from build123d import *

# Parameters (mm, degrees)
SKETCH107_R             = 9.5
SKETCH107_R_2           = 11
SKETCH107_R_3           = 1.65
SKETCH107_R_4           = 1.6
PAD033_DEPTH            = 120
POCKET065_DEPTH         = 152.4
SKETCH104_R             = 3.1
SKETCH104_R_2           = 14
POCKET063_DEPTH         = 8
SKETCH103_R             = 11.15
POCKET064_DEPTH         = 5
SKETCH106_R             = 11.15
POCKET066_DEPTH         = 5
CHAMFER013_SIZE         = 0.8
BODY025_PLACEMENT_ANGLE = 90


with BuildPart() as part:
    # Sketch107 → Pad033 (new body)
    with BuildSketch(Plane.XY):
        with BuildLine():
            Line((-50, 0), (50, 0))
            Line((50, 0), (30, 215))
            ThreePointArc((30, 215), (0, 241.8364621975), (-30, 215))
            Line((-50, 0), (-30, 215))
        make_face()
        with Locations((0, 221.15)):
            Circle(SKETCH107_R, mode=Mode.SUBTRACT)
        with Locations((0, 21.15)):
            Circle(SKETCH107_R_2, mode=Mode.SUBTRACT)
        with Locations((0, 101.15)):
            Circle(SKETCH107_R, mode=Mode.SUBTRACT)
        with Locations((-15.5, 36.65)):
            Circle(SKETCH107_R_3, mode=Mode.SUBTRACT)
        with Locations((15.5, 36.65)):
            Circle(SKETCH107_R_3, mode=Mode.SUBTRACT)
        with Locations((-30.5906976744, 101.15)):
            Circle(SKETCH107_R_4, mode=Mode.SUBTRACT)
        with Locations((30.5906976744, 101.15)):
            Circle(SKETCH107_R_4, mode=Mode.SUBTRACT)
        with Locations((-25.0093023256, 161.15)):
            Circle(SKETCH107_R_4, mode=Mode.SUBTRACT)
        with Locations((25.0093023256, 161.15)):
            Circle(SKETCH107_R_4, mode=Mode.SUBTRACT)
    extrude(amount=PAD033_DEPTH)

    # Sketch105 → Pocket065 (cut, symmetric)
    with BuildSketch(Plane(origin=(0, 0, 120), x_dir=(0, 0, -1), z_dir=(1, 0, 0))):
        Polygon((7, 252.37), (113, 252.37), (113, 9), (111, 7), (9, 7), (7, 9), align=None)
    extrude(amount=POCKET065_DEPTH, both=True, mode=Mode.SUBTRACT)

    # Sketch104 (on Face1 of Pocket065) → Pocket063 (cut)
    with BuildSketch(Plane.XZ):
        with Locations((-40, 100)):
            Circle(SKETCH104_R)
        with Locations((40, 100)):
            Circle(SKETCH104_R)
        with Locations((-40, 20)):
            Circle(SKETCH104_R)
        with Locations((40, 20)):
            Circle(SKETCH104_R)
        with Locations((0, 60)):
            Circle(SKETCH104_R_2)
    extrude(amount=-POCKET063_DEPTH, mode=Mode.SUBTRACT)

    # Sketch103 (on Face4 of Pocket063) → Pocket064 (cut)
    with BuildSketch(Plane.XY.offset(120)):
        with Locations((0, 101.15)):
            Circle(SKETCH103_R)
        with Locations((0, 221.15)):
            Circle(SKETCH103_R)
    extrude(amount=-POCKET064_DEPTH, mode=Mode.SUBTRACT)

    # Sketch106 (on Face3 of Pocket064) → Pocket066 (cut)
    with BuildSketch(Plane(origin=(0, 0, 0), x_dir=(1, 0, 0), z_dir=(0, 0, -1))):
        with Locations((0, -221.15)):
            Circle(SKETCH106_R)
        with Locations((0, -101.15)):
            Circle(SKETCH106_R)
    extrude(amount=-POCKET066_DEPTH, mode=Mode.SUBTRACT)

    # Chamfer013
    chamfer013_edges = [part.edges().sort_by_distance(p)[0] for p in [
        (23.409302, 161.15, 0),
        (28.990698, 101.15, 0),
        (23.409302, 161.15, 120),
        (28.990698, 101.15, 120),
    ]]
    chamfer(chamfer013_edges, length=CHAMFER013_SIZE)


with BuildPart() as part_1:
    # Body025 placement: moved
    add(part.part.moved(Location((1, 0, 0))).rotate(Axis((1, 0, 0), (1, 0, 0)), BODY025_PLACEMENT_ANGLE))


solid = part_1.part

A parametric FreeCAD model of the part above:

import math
import FreeCAD as App
import Part
import Sketcher
from FreeCAD import Vector
Q = App.Units.Quantity


def edges_at(feature, points):
    """Names of the edges that pass closest to the given points."""
    edges = feature.Shape.Edges
    near = lambda p: min(range(len(edges)), key=lambda i: edges[i].distToShape(Part.Vertex(*p))[0])
    return sorted({f"Edge{near(p) + 1}" for p in points})


def add_polygon(sketch, points):
    """Adds a closed chain of lines whose ends are joined by coincident constraints."""
    first, n = sketch.GeometryCount, len(points)
    for a, b in zip(points, points[1:] + points[:1]):
        sketch.addGeometry(Part.LineSegment(App.Vector(*a, 0), App.Vector(*b, 0)), False)
    for i in range(n):
        sketch.addConstraint(Sketcher.Constraint("Coincident", first + i, 2, first + (i + 1) % n, 1))

doc = App.newDocument("Part")
body = doc.addObject("PartDesign::Body", "Body")

# Sketch on XY plane
sketch1 = body.newObject("Sketcher::SketchObject", "Sketch")
sketch1.AttachmentSupport = (doc.getObject("XY_Plane"), [""])
sketch1.MapMode = "FlatFace"
sketch1.addGeometry([
    Part.LineSegment(Vector(-50, 0, 0), Vector(50, 0, 0)),  # 0
    Part.LineSegment(Vector(50, 0, 0), Vector(30, 215, 0)),  # 1
    Part.ArcOfCircle(Part.Circle(Vector(0, 211.7, 0), Vector(0, 0, 1), 30.2), math.radians(6), math.radians(174)),  # 2
    Part.LineSegment(Vector(-30, 215, 0), Vector(-50, 0, 0)),  # 3
    Part.Circle(Vector(-15.5, 36.6, 0), Vector(0, 0, 1), 1.6),  # 4
    Part.Circle(Vector(-30.6, 101.2, 0), Vector(0, 0, 1), 1.6),  # 5
    Part.Circle(Vector(0, 21.1, 0), Vector(0, 0, 1), 11),  # 6
    Part.Circle(Vector(15.5, 36.6, 0), Vector(0, 0, 1), 1.6),  # 7
    Part.Circle(Vector(0, 101.2, 0), Vector(0, 0, 1), 9.5),  # 8
    Part.Circle(Vector(30.6, 101.2, 0), Vector(0, 0, 1), 1.6),  # 9
    Part.Circle(Vector(-25, 161.2, 0), Vector(0, 0, 1), 1.6),  # 10
    Part.Circle(Vector(25, 161.2, 0), Vector(0, 0, 1), 1.6),  # 11
    Part.Circle(Vector(0, 221.2, 0), Vector(0, 0, 1), 9.5),  # 12
], False)
sketch1.addConstraint([
    Sketcher.Constraint("Coincident", 0, 2, 1, 1),
    Sketcher.Constraint("Coincident", 1, 2, 2, 1),
    Sketcher.Constraint("Coincident", 2, 2, 3, 1),
    Sketcher.Constraint("Coincident", 3, 2, 0, 1),
    Sketcher.Constraint("Horizontal", 0),
    Sketcher.Constraint("Equal", 4, 7),
    Sketcher.Constraint("Equal", 5, 9),
    Sketcher.Constraint("Equal", 9, 10),
    Sketcher.Constraint("Equal", 10, 11),
    Sketcher.Constraint("Equal", 8, 12),
    Sketcher.Constraint("Symmetric", 0, 2, 3, 2, -1, 1),
    Sketcher.Constraint("Symmetric", 4, 3, 7, 3, -2),
    Sketcher.Constraint("Symmetric", 5, 3, 9, 3, -2),
    Sketcher.Constraint("Symmetric", 10, 3, 11, 3, -2),
    Sketcher.Constraint("Symmetric", 1, 2, 2, 2, -2),
    Sketcher.Constraint("PointOnObject", 6, 3, -2),
    Sketcher.Constraint("PointOnObject", 8, 3, -2),
    Sketcher.Constraint("PointOnObject", 12, 3, -2),
    Sketcher.Constraint("Horizontal", 5, 3, 8, 3),
    Sketcher.Constraint("Diameter", 6, Q("22 mm")),
    Sketcher.Constraint("Diameter", 8, Q("19 mm")),
    Sketcher.Constraint("Diameter", 4, Q("3.3 mm")),
    Sketcher.Constraint("Diameter", 5, Q("3.2 mm")),
    Sketcher.Constraint("DistanceX", 0, 1, 0, 2, Q("100 mm")),
    Sketcher.Constraint("DistanceX", -1, 1, 1, 2, Q("30 mm")),
    Sketcher.Constraint("DistanceY", -1, 1, 1, 2, Q("215 mm")),
    Sketcher.Constraint("DistanceY", 4, 3, 2, 3, Q("175 mm")),
    Sketcher.Constraint("DistanceY", 6, 3, 5, 3, Q("80 mm")),
    Sketcher.Constraint("DistanceX", 4, 3, 7, 3, Q("31 mm")),
    Sketcher.Constraint("DistanceY", 5, 3, 10, 3, Q("60 mm")),
    Sketcher.Constraint("DistanceY", 10, 3, 12, 3, Q("60 mm")),
    Sketcher.Constraint("DistanceY", 4, 3, 5, 3, Q("64.5 mm")),
    Sketcher.Constraint("DistanceX", 10, 3, 9, 3, Q("55.6 mm")),
    Sketcher.Constraint("DistanceY", -1, 1, 2, 3, Q("211.65 mm")),
    Sketcher.Constraint("DistanceX", 5, 3, -1, 1, Q("30.590698 mm")),
])
pad1 = body.newObject("PartDesign::Pad", "Pad")
pad1.Profile = sketch1
pad1.Length = 120

# Sketch on YZ plane
sketch2 = body.newObject("Sketcher::SketchObject", "Sketch001")
sketch2.AttachmentSupport = (doc.getObject("YZ_Plane"), [""])
sketch2.MapMode = "FlatFace"
add_polygon(sketch2, [(252.4, 7), (252.4, 113), (9, 113), (7, 111), (7, 9), (9, 7)])  # lines 0-5
sketch2.addConstraint([
    Sketcher.Constraint("Vertical", 0),
    Sketcher.Constraint("Horizontal", 1),
    Sketcher.Constraint("Vertical", 3),
    Sketcher.Constraint("Horizontal", 5),
    Sketcher.Constraint("Perpendicular", 2, 4),
    Sketcher.Constraint("Vertical", 1, 2, 4, 2),
    Sketcher.Constraint("Equal", 2, 4),
    Sketcher.Constraint("DistanceY", 0, 1, 0, 2, Q("106 mm")),
    Sketcher.Constraint("DistanceY", 3, 2, 3, 1, Q("102 mm")),
    Sketcher.Constraint("DistanceY", -1, 1, 0, 2, Q("113 mm")),
    Sketcher.Constraint("DistanceX", -1, 1, 1, 2, Q("9 mm")),
    Sketcher.Constraint("DistanceX", 1, 2, 1, 1, Q("243.37 mm")),
])
pocket1 = body.newObject("PartDesign::Pocket", "Pocket")
pocket1.Profile = sketch2
pocket1.Length = 304.8
pocket1.Midplane = True

# Sketch on XZ plane
sketch3 = body.newObject("Sketcher::SketchObject", "Sketch002")
sketch3.AttachmentSupport = (doc.getObject("XZ_Plane"), [""])
sketch3.MapMode = "FlatFace"
sketch3.addGeometry([
    Part.Circle(Vector(-40, 100, 0), Vector(0, 0, 1), 3.1),  # 0
    Part.Circle(Vector(40, 100, 0), Vector(0, 0, 1), 3.1),  # 1
    Part.Circle(Vector(-40, 20, 0), Vector(0, 0, 1), 3.1),  # 2
    Part.Circle(Vector(40, 20, 0), Vector(0, 0, 1), 3.1),  # 3
    Part.Circle(Vector(0, 60, 0), Vector(0, 0, 1), 14),  # 4
], False)
sketch3.addConstraint([
    Sketcher.Constraint("Equal", 0, 1),
    Sketcher.Constraint("Equal", 1, 2),
    Sketcher.Constraint("Equal", 2, 3),
    Sketcher.Constraint("Symmetric", 0, 3, 1, 3, -2),
    Sketcher.Constraint("Symmetric", 2, 3, 3, 3, -2),
    Sketcher.Constraint("PointOnObject", 4, 3, -2),
    Sketcher.Constraint("Vertical", 0, 3, 2, 3),
    Sketcher.Constraint("Diameter", 4, Q("28 mm")),
    Sketcher.Constraint("Diameter", 0, Q("6.2 mm")),
    Sketcher.Constraint("DistanceX", 0, 3, -1, 1, Q("40 mm")),
    Sketcher.Constraint("DistanceY", -1, 1, 0, 3, Q("100 mm")),
    Sketcher.Constraint("DistanceY", -1, 1, 2, 3, Q("20 mm")),
    Sketcher.Constraint("DistanceY", -1, 1, 4, 3, Q("60 mm")),
])
pocket2 = body.newObject("PartDesign::Pocket", "Pocket001")
pocket2.Profile = sketch3
pocket2.Length = 8

# Sketch on XY plane
sketch4 = body.newObject("Sketcher::SketchObject", "Sketch003")
sketch4.AttachmentSupport = (doc.getObject("XY_Plane"), [""])
sketch4.MapMode = "FlatFace"
sketch4.AttachmentOffset = App.Placement(Vector(0, 0, 120), App.Rotation())
sketch4.addGeometry([
    Part.Circle(Vector(0, 101, 0), Vector(0, 0, 1), 11),
    Part.Circle(Vector(0, 221, 0), Vector(0, 0, 1), 11),
], False)
sketch4.addConstraint([
    Sketcher.Constraint("Equal", 0, 1),
    Sketcher.Constraint("PointOnObject", 0, 3, -2),
    Sketcher.Constraint("PointOnObject", 1, 3, -2),
    Sketcher.Constraint("Diameter", 0, Q("22.3 mm")),
    Sketcher.Constraint("DistanceY", 0, 3, 1, 3, Q("120 mm")),
    Sketcher.Constraint("DistanceY", -1, 1, 0, 3, Q("101.15 mm")),
])
pocket3 = body.newObject("PartDesign::Pocket", "Pocket002")
pocket3.Profile = sketch4
pocket3.Length = 5

# Sketch on XY plane
sketch5 = body.newObject("Sketcher::SketchObject", "Sketch004")
sketch5.AttachmentSupport = (doc.getObject("XY_Plane"), [""])
sketch5.MapMode = "FlatFace"
sketch5.addGeometry([
    Part.Circle(Vector(0, 221, 0), Vector(0, 0, 1), 11),
    Part.Circle(Vector(0, 101, 0), Vector(0, 0, 1), 11),
], False)
sketch5.addConstraint([
    Sketcher.Constraint("Equal", 0, 1),
    Sketcher.Constraint("PointOnObject", 0, 3, -2),
    Sketcher.Constraint("PointOnObject", 1, 3, -2),
    Sketcher.Constraint("Diameter", 0, Q("22.3 mm")),
    Sketcher.Constraint("DistanceY", 1, 3, 0, 3, Q("120 mm")),
    Sketcher.Constraint("DistanceY", -1, 1, 0, 3, Q("221.15 mm")),
])
pocket4 = body.newObject("PartDesign::Pocket", "Pocket003")
pocket4.Profile = sketch5
pocket4.Length = 5
pocket4.Reversed = True
doc.recompute()

chamfer = body.newObject("PartDesign::Chamfer", "Chamfer")
chamfer.Base = (pocket4, edges_at(pocket4, [
    (23.409, 161.15, 0),
    (28.991, 101.15, 0),
    (23.409, 161.15, 120),
    (28.991, 101.15, 120),
]))
chamfer.Size = 0.8
body2 = doc.addObject("PartDesign::Body", "Body001")
doc.recompute()

body.Placement = App.Placement(Vector(1, 0, 0), App.Rotation(Vector(1, 0, 0), 90))
boolean = body2.newObject("PartDesign::Boolean", "Boolean")
boolean.Type = "Fuse"
boolean.addObjects([body])

doc.recompute()
